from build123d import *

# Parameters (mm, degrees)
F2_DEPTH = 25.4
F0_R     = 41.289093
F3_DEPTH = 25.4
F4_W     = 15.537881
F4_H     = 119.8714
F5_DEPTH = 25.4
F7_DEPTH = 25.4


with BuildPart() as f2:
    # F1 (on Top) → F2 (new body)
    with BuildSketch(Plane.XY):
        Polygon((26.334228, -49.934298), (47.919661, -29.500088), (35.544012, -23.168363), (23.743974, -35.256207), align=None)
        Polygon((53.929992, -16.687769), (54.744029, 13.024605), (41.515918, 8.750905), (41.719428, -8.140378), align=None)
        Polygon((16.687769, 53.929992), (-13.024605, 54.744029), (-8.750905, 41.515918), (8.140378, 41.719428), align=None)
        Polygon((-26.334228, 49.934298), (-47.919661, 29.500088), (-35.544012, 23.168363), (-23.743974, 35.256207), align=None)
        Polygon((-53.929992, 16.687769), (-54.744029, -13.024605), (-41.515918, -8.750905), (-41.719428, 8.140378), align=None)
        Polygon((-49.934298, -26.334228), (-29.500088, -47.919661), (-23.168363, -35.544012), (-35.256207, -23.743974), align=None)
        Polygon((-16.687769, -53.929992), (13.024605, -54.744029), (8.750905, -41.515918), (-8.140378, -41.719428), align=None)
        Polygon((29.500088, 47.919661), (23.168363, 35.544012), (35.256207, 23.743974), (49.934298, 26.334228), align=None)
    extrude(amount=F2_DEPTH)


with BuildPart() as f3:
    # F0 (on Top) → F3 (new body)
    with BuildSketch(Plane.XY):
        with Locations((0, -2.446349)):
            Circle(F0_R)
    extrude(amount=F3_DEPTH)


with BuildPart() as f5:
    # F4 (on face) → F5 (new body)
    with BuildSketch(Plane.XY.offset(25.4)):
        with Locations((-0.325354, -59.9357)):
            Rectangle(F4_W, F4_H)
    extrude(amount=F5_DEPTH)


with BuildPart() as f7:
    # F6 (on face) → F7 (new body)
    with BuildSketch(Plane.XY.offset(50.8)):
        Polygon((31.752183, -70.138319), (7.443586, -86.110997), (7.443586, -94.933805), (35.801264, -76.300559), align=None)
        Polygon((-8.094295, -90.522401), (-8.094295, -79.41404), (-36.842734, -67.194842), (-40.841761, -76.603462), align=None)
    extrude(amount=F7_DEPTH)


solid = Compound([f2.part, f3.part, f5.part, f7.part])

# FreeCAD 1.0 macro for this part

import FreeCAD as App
import Part
import Sketcher

V = App.Vector
Q = App.Units.Quantity


def add_polygon(sketch, points):
    """Adds a closed chain of lines whose ends are joined by coincident constraints."""
    first, n = sketch.GeometryCount, len(points)
    for a, b in zip(points, points[1:] + points[:1]):
        sketch.addGeometry(Part.LineSegment(App.Vector(*a, 0), App.Vector(*b, 0)), False)
    for i in range(n):
        sketch.addConstraint(Sketcher.Constraint("Coincident", first + i, 2, first + (i + 1) % n, 1))

doc = App.newDocument("Part")
body = doc.addObject("PartDesign::Body", "Body")
body.AllowCompound = True

sketch1 = body.newObject("Sketcher::SketchObject", "Sketch")
sketch1.AttachmentSupport = (doc.getObject("XY_Plane"), [""])
sketch1.MapMode = "FlatFace"
add_polygon(sketch1, [(26, -50), (48, -30), (36, -23), (24, -35)])
add_polygon(sketch1, [(54, -17), (55, 13), (42, 9), (42, -8)])
add_polygon(sketch1, [(17, 54), (-13, 55), (-9, 42), (8, 42)])
add_polygon(sketch1, [(-26, 50), (-48, 30), (-36, 23), (-24, 35)])
add_polygon(sketch1, [(-54, 17), (-55, -13), (-42, -9), (-42, 8)])
add_polygon(sketch1, [(-50, -26), (-30, -48), (-23, -36), (-35, -24)])
add_polygon(sketch1, [(-17, -54), (13, -55), (9, -42), (-8, -42)])
add_polygon(sketch1, [(30, 48), (23, 36), (35, 24), (50, 26)])
sketch1.addConstraint([
    Sketcher.Constraint("Symmetric", 0, 2, 12, 2, -1, 1),
    Sketcher.Constraint("Symmetric", 1, 2, 13, 2, -1, 1),
    Sketcher.Constraint("Symmetric", 2, 2, 14, 2, -1, 1),
    Sketcher.Constraint("Symmetric", 3, 2, 15, 2, -1, 1),
    Sketcher.Constraint("Symmetric", 4, 2, 16, 2, -1, 1),
    Sketcher.Constraint("Symmetric", 5, 2, 17, 2, -1, 1),
    Sketcher.Constraint("Symmetric", 6, 2, 18, 2, -1, 1),
    Sketcher.Constraint("Symmetric", 7, 2, 19, 2, -1, 1),
    Sketcher.Constraint("Symmetric", 8, 2, 24, 2, -1, 1),
    Sketcher.Constraint("Symmetric", 9, 2, 25, 2, -1, 1),
    Sketcher.Constraint("Symmetric", 10, 2, 26, 2, -1, 1),
    Sketcher.Constraint("Symmetric", 11, 2, 27, 2, -1, 1),
    Sketcher.Constraint("Symmetric", 21, 2, 28, 2, -1, 1),
    Sketcher.Constraint("Symmetric", 22, 2, 29, 2, -1, 1),
    Sketcher.Constraint("Symmetric", 23, 2, 30, 2, -1, 1),
    Sketcher.Constraint("Symmetric", 20, 2, 31, 2, -1, 1),
    Sketcher.Constraint("Perpendicular", 4, 8),
    Sketcher.Constraint("Perpendicular", 5, 9),
    Sketcher.Constraint("Perpendicular", 6, 10),
    Sketcher.Constraint("Perpendicular", 7, 11),
    Sketcher.Constraint("Perpendicular", 12, 20),
    Sketcher.Constraint("Perpendicular", 13, 21),
    Sketcher.Constraint("Perpendicular", 14, 22),
    Sketcher.Constraint("Perpendicular", 15, 23),
    Sketcher.Constraint("Equal", 0, 4),
    Sketcher.Constraint("Equal", 1, 5),
    Sketcher.Constraint("Equal", 2, 6),
    Sketcher.Constraint("Equal", 3, 7),
    Sketcher.Constraint("Equal", 4, 8),
    Sketcher.Constraint("Equal", 5, 9),
    Sketcher.Constraint("Equal", 16, 20),
    Sketcher.Constraint("Equal", 17, 21),
    Sketcher.Constraint("DistanceX", 3, 2, 4, 2, Q("28.409801 mm")),
    Sketcher.Constraint("DistanceY", 5, 2, 4, 2, Q("4.2737 mm")),
    Sketcher.Constraint("DistanceX", 6, 2, 4, 2, Q("13.024601 mm")),
    Sketcher.Constraint("Distance", 2, Q("16.892509 mm")),
    Sketcher.Constraint("Distance", 3, Q("14.904891 mm")),
    Sketcher.Constraint("DistanceX", -1, 1, 0, 2, Q("47.919661 mm")),
    Sketcher.Constraint("DistanceY", 0, 2, -1, 1, Q("29.500088 mm")),
    Sketcher.Constraint("DistanceX", -1, 1, 4, 2, Q("54.744029 mm")),
    Sketcher.Constraint("DistanceY", 7, 2, -1, 1, Q("16.687769 mm")),
    Sketcher.Constraint("DistanceY", -1, 1, 8, 2, Q("54.744029 mm")),
    Sketcher.Constraint("DistanceX", -1, 1, 11, 2, Q("16.687769 mm")),
    Sketcher.Constraint("DistanceX", 20, 2, -1, 1, Q("29.500088 mm")),
    Sketcher.Constraint("DistanceY", 20, 2, -1, 1, Q("47.919661 mm")),
    Sketcher.Constraint("DistanceX", 1, 2, 0, 2, Q("12.375649 mm")),
    Sketcher.Constraint("DistanceX", 2, 2, 1, 2, Q("11.800038 mm")),
    Sketcher.Constraint("DistanceY", 2, 2, 0, 2, Q("5.756119 mm")),
])
pad1 = body.newObject("PartDesign::Pad", "Pad")
pad1.Profile = sketch1
pad1.Length = Q("1 in")
body2 = doc.addObject("PartDesign::Body", "Body001")

sketch2 = body2.newObject("Sketcher::SketchObject", "Sketch001")
sketch2.AttachmentSupport = (doc.getObject("XY_Plane001"), [""])
sketch2.MapMode = "FlatFace"
sketch2.addGeometry(Part.Circle(V(0, -2, 0), V(0, 0, 1), 41), False)
sketch2.addConstraint([
    Sketcher.Constraint("PointOnObject", 0, 3, -2),
    Sketcher.Constraint("Diameter", 0, Q("82.578186 mm")),
    Sketcher.Constraint("DistanceY", 0, 3, -1, 1, Q("2.446349 mm")),
])
pad2 = body2.newObject("PartDesign::Pad", "Pad001")
pad2.Profile = sketch2
pad2.Length = Q("1 in")
body3 = doc.addObject("PartDesign::Body", "Body002")

sketch3 = body3.newObject("Sketcher::SketchObject", "Sketch002")
sketch3.AttachmentSupport = (doc.getObject("XY_Plane002"), [""])
sketch3.MapMode = "FlatFace"
sketch3.AttachmentOffset = App.Placement(V(0, 0, 1 * 25.4), App.Rotation())
add_polygon(sketch3, [(-8, 0), (-8, -120), (7, -120), (7, 0)])
sketch3.addConstraint([
    Sketcher.Constraint("Vertical", 0),
    Sketcher.Constraint("Horizontal", 1),
    Sketcher.Constraint("Vertical", 2),
    Sketcher.Constraint("Horizontal", 3),
    Sketcher.Constraint("PointOnObject", 2, 2, -1),
    Sketcher.Constraint("DistanceY", 0, 2, 0, 1, Q("119.8714 mm")),
    Sketcher.Constraint("DistanceX", 1, 1, 1, 2, Q("15.537881 mm")),
    Sketcher.Constraint("DistanceX", 0, 2, -1, 1, Q("8.094295 mm")),
])
pad3 = body3.newObject("PartDesign::Pad", "Pad002")
pad3.Profile = sketch3
pad3.Length = Q("1 in")
body4 = doc.addObject("PartDesign::Body", "Body003")
body4.AllowCompound = True

sketch4 = body4.newObject("Sketcher::SketchObject", "Sketch003")
sketch4.AttachmentSupport = (doc.getObject("XY_Plane003"), [""])
sketch4.MapMode = "FlatFace"
sketch4.AttachmentOffset = App.Placement(V(0, 0, 2 * 25.4), App.Rotation())
add_polygon(sketch4, [(32, -70), (7, -86), (7, -95), (36, -76)])
add_polygon(sketch4, [(-8, -91), (-8, -79), (-37, -67), (-41, -77)])
sketch4.addConstraint([
    Sketcher.Constraint("Vertical", 1),
    Sketcher.Constraint("Vertical", 4),
    Sketcher.Constraint("Parallel", 0, 2),
    Sketcher.Constraint("Perpendicular", 2, 3),
    Sketcher.Constraint("Perpendicular", 5, 6),
    Sketcher.Constraint("Perpendicular", 6, 7),
    Sketcher.Constraint("DistanceX", 5, 2, 2, 2, Q("2.8599999 in")),
    Sketcher.Constraint("DistanceY", 1, 2, 1, 1, Q("8.822808 mm")),
    Sketcher.Constraint("DistanceY", 4, 1, 4, 2, Q("11.108361 mm")),
    Sketcher.Constraint("DistanceY", 7, 2, -1, 1, Q("90.522401 mm")),
    Sketcher.Constraint("DistanceY", 4, 2, 5, 2, Q("12.219198 mm")),
    Sketcher.Constraint("Distance", 0, Q("29.086669 mm")),
    Sketcher.Constraint("Distance", 7, Q("35.582768 mm")),
    Sketcher.Constraint("DistanceY", 2, 2, -1, 1, Q("76.300559 mm")),
    Sketcher.Constraint("DistanceY", 3, 2, -1, 1, Q("70.138319 mm")),
    Sketcher.Constraint("DistanceX", 6, 2, -1, 1, Q("40.841761 mm")),
])
pad4 = body4.newObject("PartDesign::Pad", "Pad003")
pad4.Profile = sketch4
pad4.Length = Q("1 in")

doc.recompute()
